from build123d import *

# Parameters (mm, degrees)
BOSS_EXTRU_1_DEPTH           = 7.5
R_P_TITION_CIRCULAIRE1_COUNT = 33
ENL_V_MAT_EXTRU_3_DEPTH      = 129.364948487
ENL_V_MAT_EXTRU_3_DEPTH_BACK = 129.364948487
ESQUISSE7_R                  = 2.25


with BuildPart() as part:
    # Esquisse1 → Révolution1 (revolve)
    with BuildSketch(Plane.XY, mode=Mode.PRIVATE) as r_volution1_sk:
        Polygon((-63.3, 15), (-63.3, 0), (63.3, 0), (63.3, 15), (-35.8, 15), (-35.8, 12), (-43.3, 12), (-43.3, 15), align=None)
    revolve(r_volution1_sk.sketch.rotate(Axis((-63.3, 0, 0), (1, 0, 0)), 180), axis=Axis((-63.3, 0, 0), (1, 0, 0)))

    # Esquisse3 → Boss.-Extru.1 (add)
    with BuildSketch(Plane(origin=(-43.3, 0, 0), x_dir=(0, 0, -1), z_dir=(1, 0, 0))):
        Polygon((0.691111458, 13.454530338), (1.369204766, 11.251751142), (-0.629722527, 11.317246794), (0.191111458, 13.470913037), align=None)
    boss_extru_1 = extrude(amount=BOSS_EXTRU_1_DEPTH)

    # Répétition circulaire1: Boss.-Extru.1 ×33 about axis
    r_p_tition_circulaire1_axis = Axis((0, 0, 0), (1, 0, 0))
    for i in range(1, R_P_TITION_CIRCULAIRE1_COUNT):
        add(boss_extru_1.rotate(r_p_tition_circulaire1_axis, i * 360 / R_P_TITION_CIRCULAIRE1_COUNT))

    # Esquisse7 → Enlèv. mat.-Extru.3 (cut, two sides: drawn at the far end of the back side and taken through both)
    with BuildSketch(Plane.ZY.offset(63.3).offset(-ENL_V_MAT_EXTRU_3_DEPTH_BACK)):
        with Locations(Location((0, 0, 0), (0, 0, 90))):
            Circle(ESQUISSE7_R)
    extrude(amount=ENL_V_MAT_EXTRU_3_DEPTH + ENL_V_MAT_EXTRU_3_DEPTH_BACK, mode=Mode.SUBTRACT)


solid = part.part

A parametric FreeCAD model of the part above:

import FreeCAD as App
import Part
import Sketcher

V = App.Vector

doc = App.newDocument("Part")
body = doc.addObject("PartDesign::Body", "Body")

sketch1 = doc.addObject("Sketcher::SketchObject", "Sketch")
body.addObject(sketch1)
sketch1.AttachmentSupport = (doc.XY_Plane, [""])
sketch1.MapMode = "FlatFace"
sketch1.addGeometry(Part.LineSegment(V(-63.3, 15, 0), V(-63.3, 0, 0)), False)
sketch1.addGeometry(Part.LineSegment(V(-63.3, 0, 0), V(63.3, 0, 0)), False)
sketch1.addGeometry(Part.LineSegment(V(63.3, 0, 0), V(63.3, 15, 0)), False)
sketch1.addGeometry(Part.LineSegment(V(63.3, 15, 0), V(-35.8, 15, 0)), False)
sketch1.addGeometry(Part.LineSegment(V(-35.8, 15, 0), V(-35.8, 12, 0)), False)
sketch1.addGeometry(Part.LineSegment(V(-35.8, 12, 0), V(-43.3, 12, 0)), False)
sketch1.addGeometry(Part.LineSegment(V(-43.3, 12, 0), V(-43.3, 15, 0)), False)
sketch1.addGeometry(Part.LineSegment(V(-43.3, 15, 0), V(-63.3, 15, 0)), False)
sketch1.addConstraint(Sketcher.Constraint("Coincident", 0, 2, 1, 1))
sketch1.addConstraint(Sketcher.Constraint("Coincident", 1, 2, 2, 1))
sketch1.addConstraint(Sketcher.Constraint("Coincident", 2, 2, 3, 1))
sketch1.addConstraint(Sketcher.Constraint("Coincident", 3, 2, 4, 1))
sketch1.addConstraint(Sketcher.Constraint("Coincident", 4, 2, 5, 1))
sketch1.addConstraint(Sketcher.Constraint("Coincident", 5, 2, 6, 1))
sketch1.addConstraint(Sketcher.Constraint("Coincident", 6, 2, 7, 1))
sketch1.addConstraint(Sketcher.Constraint("Coincident", 7, 2, 0, 1))
sketch1.addConstraint(Sketcher.Constraint("Vertical", 0))
sketch1.addConstraint(Sketcher.Constraint("Horizontal", 1))
sketch1.addConstraint(Sketcher.Constraint("Vertical", 2))
sketch1.addConstraint(Sketcher.Constraint("Horizontal", 3))
sketch1.addConstraint(Sketcher.Constraint("Vertical", 4))
sketch1.addConstraint(Sketcher.Constraint("Horizontal", 5))
sketch1.addConstraint(Sketcher.Constraint("Vertical", 6))
sketch1.addConstraint(Sketcher.Constraint("Horizontal", 7))
sketch1.addConstraint(Sketcher.Constraint("Symmetric", 0, 2, 1, 2, -1, 1))
sketch1.addConstraint(Sketcher.Constraint("Horizontal", 3, 2, 6, 2))
sketch1.addConstraint(Sketcher.Constraint("DistanceX", 7, 2, 7, 1, 20.0))
sketch1.addConstraint(Sketcher.Constraint("DistanceY", 0, 2, 0, 1, 15.0))
sketch1.addConstraint(Sketcher.Constraint("DistanceY", 4, 2, 4, 1, 3.0))
sketch1.addConstraint(Sketcher.Constraint("DistanceX", 1, 1, 1, 2, 126.6))
sketch1.addConstraint(Sketcher.Constraint("DistanceX", 3, 2, 3, 1, 99.1))
revolution = doc.addObject("PartDesign::Revolution", "Revolution")
body.addObject(revolution)
revolution.Profile = sketch1
revolution.ReferenceAxis = (sketch1, ["H_Axis"])
revolution.Angle = 360

sketch2 = doc.addObject("Sketcher::SketchObject", "Sketch001")
body.addObject(sketch2)
sketch2.AttachmentSupport = (doc.YZ_Plane, [""])
sketch2.MapMode = "FlatFace"
sketch2.AttachmentOffset = App.Placement(V(0, 0, -43.3), App.Rotation())
sketch2.addGeometry(Part.LineSegment(V(11.251751, -1.369205, 0), V(13.45453, -0.691111, 0)), False)
sketch2.addGeometry(Part.LineSegment(V(13.45453, -0.691111, 0), V(13.470913, -0.191111, 0)), False)
sketch2.addGeometry(Part.LineSegment(V(13.470913, -0.191111, 0), V(11.317247, 0.629723, 0)), False)
sketch2.addGeometry(Part.LineSegment(V(11.317247, 0.629723, 0), V(11.251751, -1.369205, 0)), False)
sketch2.addConstraint(Sketcher.Constraint("Coincident", 0, 2, 1, 1))
sketch2.addConstraint(Sketcher.Constraint("Coincident", 1, 2, 2, 1))
sketch2.addConstraint(Sketcher.Constraint("Coincident", 2, 2, 3, 1))
sketch2.addConstraint(Sketcher.Constraint("Coincident", 3, 2, 0, 1))
sketch2.addConstraint(Sketcher.Constraint("Distance", 3, 2.0))
sketch2.addConstraint(Sketcher.Constraint("DistanceY", 0, 2, 1, 2, 0.5))
sketch2.addConstraint(Sketcher.Constraint("Distance", 1, 0.500268))
sketch2.addConstraint(Sketcher.Constraint("DistanceX", -1, 1, 0, 2, 13.45453))
sketch2.addConstraint(Sketcher.Constraint("DistanceY", 0, 2, -1, 1, 0.691111))
sketch2.addConstraint(Sketcher.Constraint("DistanceX", -1, 1, 3, 2, 11.251751))
sketch2.addConstraint(Sketcher.Constraint("Distance", 0, 2.304788))
sketch2.addConstraint(Sketcher.Constraint("Distance", 2, 2.304788))
pad1 = doc.addObject("PartDesign::Pad", "Pad")
body.addObject(pad1)
pad1.Profile = sketch2
pad1.Length = 7.5
doc.recompute()

polarpattern = doc.addObject("PartDesign::PolarPattern", "PolarPattern")
body.addObject(polarpattern)
polarpattern.Originals = [pad1]
polarpattern.Axis = (doc.X_Axis, [""])
polarpattern.Angle = 360
polarpattern.Occurrences = 33
body.Tip = polarpattern

sketch3 = doc.addObject("Sketcher::SketchObject", "Sketch002")
body.addObject(sketch3)
sketch3.AttachmentSupport = (doc.YZ_Plane, [""])
sketch3.MapMode = "FlatFace"
sketch3.AttachmentOffset = App.Placement(V(0, 0, -63.3), App.Rotation())
sketch3.addGeometry(Part.Circle(V(0, 0, 0), V(0, 0, 1), 2.25), False)
sketch3.addConstraint(Sketcher.Constraint("Coincident", 0, 3, -1, 1))
sketch3.addConstraint(Sketcher.Constraint("Diameter", 0, 4.5))
pocket1 = doc.addObject("PartDesign::Pocket", "Pocket")
body.addObject(pocket1)
pocket1.Profile = sketch3
pocket1.Type = "ThroughAll"
pocket1.Midplane = True

doc.recompute()
